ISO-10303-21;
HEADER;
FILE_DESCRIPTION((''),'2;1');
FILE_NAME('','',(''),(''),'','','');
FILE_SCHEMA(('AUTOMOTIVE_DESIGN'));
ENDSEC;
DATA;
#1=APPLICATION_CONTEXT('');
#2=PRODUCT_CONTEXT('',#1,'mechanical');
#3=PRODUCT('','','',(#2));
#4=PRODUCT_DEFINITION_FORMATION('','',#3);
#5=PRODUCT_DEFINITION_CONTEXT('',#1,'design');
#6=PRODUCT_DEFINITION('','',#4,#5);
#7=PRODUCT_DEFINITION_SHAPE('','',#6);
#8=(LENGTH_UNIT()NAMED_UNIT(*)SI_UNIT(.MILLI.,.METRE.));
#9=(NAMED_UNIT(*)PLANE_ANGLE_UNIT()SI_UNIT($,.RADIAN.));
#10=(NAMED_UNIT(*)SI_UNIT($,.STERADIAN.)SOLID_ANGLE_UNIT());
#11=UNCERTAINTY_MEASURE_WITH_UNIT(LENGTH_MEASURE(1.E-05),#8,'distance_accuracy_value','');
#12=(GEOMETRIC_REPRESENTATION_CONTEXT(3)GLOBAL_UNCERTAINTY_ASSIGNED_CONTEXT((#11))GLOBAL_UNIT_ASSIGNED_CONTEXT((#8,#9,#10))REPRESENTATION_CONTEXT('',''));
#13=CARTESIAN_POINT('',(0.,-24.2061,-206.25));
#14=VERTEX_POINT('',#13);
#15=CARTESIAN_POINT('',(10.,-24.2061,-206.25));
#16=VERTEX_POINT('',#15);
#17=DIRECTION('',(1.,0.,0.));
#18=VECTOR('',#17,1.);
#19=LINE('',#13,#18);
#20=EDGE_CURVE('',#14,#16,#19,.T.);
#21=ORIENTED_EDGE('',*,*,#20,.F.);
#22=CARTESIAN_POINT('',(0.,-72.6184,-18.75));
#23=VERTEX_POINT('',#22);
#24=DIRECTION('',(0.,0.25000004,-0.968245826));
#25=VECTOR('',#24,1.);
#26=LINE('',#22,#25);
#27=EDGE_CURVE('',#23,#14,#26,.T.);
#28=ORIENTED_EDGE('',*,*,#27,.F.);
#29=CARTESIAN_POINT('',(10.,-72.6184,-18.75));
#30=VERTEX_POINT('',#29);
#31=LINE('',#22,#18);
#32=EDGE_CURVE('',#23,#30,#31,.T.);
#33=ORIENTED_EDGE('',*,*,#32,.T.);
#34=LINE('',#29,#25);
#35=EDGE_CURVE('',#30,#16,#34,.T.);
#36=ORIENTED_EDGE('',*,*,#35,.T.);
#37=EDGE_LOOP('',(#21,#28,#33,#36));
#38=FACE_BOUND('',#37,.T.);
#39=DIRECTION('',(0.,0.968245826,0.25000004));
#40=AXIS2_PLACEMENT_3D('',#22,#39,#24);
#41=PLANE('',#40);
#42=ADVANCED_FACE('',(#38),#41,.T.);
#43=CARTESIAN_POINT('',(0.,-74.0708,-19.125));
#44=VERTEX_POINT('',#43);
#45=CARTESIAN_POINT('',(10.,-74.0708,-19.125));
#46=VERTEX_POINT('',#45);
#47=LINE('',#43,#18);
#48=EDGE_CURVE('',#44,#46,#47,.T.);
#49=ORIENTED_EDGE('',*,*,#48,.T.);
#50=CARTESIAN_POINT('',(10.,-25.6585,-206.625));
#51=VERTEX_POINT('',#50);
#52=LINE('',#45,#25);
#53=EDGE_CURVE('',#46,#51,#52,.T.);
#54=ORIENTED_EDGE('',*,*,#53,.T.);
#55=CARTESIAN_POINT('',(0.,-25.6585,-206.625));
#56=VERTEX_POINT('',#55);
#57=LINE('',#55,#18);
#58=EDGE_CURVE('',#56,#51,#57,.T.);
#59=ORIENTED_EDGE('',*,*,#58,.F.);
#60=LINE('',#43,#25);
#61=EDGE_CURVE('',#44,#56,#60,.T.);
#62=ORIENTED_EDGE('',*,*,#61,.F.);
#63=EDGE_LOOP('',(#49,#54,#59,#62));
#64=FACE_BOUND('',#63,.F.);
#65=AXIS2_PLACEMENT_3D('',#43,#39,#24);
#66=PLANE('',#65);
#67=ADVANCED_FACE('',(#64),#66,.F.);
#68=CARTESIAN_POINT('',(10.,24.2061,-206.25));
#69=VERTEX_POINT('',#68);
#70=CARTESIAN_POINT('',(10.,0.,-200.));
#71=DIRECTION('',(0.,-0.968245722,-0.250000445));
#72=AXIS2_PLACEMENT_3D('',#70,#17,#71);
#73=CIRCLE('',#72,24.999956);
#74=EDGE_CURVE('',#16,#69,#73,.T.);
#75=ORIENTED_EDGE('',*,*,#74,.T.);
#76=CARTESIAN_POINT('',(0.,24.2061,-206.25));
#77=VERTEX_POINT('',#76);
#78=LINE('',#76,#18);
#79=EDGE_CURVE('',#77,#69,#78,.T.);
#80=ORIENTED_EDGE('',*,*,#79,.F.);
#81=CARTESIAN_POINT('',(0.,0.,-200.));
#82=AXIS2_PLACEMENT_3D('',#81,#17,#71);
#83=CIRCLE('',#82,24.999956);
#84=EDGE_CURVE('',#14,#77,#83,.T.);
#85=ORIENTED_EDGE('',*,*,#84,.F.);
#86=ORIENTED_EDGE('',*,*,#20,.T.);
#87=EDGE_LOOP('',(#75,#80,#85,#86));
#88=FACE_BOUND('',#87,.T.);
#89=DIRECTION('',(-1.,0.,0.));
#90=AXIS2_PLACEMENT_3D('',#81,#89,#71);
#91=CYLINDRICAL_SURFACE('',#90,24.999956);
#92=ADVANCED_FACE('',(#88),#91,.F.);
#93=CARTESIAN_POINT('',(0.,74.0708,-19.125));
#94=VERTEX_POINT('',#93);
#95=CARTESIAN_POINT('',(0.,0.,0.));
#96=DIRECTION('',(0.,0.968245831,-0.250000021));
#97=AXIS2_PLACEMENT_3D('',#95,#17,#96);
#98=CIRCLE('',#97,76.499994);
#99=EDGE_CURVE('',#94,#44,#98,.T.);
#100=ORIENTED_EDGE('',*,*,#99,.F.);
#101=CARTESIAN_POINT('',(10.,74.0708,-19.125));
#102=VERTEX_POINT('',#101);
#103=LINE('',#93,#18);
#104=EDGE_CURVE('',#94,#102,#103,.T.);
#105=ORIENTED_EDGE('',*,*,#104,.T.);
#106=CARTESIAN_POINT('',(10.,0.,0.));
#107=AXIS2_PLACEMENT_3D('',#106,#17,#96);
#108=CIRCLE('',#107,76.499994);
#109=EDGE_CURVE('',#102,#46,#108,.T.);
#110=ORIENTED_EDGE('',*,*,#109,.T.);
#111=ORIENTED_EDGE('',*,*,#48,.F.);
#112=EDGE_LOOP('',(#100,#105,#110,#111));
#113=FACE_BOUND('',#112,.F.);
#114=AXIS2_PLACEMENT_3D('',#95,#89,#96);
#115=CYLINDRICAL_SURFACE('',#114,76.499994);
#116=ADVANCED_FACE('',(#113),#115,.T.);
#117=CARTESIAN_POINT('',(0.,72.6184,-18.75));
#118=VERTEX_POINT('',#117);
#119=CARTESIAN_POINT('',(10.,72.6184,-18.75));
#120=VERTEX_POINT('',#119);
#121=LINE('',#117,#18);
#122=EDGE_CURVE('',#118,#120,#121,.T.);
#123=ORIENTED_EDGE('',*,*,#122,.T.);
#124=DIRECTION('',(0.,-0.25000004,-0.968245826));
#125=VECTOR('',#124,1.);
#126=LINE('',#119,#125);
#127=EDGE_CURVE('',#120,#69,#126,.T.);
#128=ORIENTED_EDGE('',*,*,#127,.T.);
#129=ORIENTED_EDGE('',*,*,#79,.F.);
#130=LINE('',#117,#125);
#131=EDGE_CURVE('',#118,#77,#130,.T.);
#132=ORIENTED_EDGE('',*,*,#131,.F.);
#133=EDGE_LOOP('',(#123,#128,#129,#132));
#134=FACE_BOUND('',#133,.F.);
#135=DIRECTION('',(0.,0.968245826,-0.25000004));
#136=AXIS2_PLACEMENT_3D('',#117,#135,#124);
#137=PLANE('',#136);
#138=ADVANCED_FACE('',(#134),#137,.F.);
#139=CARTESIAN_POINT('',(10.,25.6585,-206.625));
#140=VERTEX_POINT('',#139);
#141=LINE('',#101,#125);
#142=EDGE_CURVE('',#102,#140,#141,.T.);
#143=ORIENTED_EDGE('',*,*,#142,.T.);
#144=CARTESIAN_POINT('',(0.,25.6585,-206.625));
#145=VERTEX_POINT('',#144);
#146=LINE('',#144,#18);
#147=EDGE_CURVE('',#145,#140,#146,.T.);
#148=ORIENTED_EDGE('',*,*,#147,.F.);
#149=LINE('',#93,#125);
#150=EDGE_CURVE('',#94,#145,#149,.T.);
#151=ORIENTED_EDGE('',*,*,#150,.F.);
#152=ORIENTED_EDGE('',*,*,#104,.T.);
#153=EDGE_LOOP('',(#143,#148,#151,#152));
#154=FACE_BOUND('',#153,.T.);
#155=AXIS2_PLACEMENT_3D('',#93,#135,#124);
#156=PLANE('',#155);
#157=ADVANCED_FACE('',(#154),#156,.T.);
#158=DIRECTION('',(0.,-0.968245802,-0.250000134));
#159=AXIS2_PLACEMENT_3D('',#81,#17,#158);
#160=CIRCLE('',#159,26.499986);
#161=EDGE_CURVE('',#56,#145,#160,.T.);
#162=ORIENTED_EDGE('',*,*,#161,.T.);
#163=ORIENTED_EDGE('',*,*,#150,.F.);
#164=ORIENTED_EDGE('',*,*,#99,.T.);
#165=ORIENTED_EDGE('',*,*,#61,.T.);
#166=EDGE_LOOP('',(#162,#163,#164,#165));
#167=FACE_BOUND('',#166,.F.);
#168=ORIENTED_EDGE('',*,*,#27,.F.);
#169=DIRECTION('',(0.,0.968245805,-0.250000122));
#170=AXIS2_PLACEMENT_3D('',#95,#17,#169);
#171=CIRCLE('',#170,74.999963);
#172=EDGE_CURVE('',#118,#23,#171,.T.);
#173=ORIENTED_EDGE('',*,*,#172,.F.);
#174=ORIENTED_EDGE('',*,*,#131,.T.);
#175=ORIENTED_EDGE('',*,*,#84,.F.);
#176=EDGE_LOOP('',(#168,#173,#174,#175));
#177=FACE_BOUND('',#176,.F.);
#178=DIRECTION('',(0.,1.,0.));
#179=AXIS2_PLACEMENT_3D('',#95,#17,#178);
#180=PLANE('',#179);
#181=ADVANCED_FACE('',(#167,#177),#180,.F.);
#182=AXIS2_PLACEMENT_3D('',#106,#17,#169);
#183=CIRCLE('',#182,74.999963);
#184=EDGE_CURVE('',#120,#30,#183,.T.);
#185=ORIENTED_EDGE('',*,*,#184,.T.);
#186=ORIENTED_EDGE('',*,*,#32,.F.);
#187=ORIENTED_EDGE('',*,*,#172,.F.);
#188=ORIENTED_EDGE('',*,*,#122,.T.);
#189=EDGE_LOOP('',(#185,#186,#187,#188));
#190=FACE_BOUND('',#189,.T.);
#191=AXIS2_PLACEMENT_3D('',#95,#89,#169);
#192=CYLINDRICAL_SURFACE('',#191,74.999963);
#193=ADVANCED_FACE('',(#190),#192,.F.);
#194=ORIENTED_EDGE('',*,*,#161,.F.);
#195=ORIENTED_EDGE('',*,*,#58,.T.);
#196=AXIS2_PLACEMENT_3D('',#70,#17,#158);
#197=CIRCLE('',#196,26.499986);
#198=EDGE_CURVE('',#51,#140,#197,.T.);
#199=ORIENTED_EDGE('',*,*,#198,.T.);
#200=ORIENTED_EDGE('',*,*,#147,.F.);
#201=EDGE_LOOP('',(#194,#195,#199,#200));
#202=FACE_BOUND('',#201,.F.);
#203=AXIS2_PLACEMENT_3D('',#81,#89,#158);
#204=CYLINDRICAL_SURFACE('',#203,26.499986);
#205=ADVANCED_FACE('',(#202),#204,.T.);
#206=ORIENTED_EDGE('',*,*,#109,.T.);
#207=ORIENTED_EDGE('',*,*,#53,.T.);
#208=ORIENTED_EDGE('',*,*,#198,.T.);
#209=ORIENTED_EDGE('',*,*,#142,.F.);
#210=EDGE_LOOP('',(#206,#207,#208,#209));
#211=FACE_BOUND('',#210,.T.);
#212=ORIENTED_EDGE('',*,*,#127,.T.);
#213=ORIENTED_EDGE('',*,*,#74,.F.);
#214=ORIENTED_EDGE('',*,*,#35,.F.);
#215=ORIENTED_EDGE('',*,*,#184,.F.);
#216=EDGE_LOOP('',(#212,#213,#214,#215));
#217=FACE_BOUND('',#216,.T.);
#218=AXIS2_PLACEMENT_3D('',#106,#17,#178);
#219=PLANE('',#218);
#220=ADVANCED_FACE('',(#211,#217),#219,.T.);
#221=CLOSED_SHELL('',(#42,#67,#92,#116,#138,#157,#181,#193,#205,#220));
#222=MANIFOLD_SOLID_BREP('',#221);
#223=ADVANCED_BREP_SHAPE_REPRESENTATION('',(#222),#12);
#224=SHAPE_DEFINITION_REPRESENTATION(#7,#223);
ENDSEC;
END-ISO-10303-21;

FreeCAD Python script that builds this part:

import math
import FreeCAD as App
import Part
import Sketcher
Q = App.Units.Quantity

doc = App.newDocument("Part")
body = doc.addObject("PartDesign::Body", "Body")

sketch1 = doc.addObject("Sketcher::SketchObject", "Sketch")
body.addObject(sketch1)
sketch1.AttachmentSupport = (doc.YZ_Plane, [""])
sketch1.MapMode = "FlatFace"
sketch1.addGeometry(Part.LineSegment(App.Vector(25.6585, -206.625, 0), App.Vector(74.0708, -19.125, 0)), False)
sketch1.addGeometry(Part.ArcOfCircle(Part.Circle(App.Vector(0, 0, 0), App.Vector(0, 0, 1), 76.499994), math.radians(-14.477513), math.radians(194.477513)), False)
sketch1.addGeometry(Part.LineSegment(App.Vector(-74.0708, -19.125, 0), App.Vector(-25.6585, -206.625, 0)), False)
sketch1.addGeometry(Part.ArcOfCircle(Part.Circle(App.Vector(0, -200, 0), App.Vector(0, 0, 1), 26.499986), math.radians(-165.52248), math.radians(-14.47752)), False)
sketch1.addGeometry(Part.ArcOfCircle(Part.Circle(App.Vector(0, 0, 0), App.Vector(0, 0, 1), 74.999963), math.radians(-14.477519), math.radians(194.477519)), False)
sketch1.addGeometry(Part.LineSegment(App.Vector(72.6184, -18.75, 0), App.Vector(24.2061, -206.25, 0)), False)
sketch1.addGeometry(Part.ArcOfCircle(Part.Circle(App.Vector(0, -200, 0), App.Vector(0, 0, 1), 24.999956), math.radians(-165.522462), math.radians(-14.477538)), False)
sketch1.addGeometry(Part.LineSegment(App.Vector(-24.2061, -206.25, 0), App.Vector(-72.6184, -18.75, 0)), False)
sketch1.addConstraint(Sketcher.Constraint("Tangent", 0, 2, 1, 1))
sketch1.addConstraint(Sketcher.Constraint("Tangent", 1, 2, 2, 1))
sketch1.addConstraint(Sketcher.Constraint("Tangent", 2, 2, 3, 1))
sketch1.addConstraint(Sketcher.Constraint("Tangent", 3, 2, 0, 1))
sketch1.addConstraint(Sketcher.Constraint("Tangent", 4, 1, 5, 1))
sketch1.addConstraint(Sketcher.Constraint("Tangent", 5, 2, 6, 2))
sketch1.addConstraint(Sketcher.Constraint("Tangent", 6, 1, 7, 1))
sketch1.addConstraint(Sketcher.Constraint("Tangent", 7, 2, 4, 2))
sketch1.addConstraint(Sketcher.Constraint("Coincident", 1, 3, -1, 1))
sketch1.addConstraint(Sketcher.Constraint("Coincident", 4, 3, -1, 1))
sketch1.addConstraint(Sketcher.Constraint("Coincident", 6, 3, 3, 3))
sketch1.addConstraint(Sketcher.Constraint("PointOnObject", 3, 3, -2))
sketch1.addConstraint(Sketcher.Constraint("Parallel", 0, 5))
sketch1.addConstraint(Sketcher.Constraint("Radius", 4, Q("75 mm")))
sketch1.addConstraint(Sketcher.Constraint("Radius", 6, Q("25 mm")))
sketch1.addConstraint(Sketcher.Constraint("Radius", 1, Q("76.5 mm")))
sketch1.addConstraint(Sketcher.Constraint("DistanceY", 3, 3, -1, 1, Q("200 mm")))
pad1 = doc.addObject("PartDesign::Pad", "Pad")
body.addObject(pad1)
pad1.Profile = sketch1
pad1.Length = 10

doc.recompute()
